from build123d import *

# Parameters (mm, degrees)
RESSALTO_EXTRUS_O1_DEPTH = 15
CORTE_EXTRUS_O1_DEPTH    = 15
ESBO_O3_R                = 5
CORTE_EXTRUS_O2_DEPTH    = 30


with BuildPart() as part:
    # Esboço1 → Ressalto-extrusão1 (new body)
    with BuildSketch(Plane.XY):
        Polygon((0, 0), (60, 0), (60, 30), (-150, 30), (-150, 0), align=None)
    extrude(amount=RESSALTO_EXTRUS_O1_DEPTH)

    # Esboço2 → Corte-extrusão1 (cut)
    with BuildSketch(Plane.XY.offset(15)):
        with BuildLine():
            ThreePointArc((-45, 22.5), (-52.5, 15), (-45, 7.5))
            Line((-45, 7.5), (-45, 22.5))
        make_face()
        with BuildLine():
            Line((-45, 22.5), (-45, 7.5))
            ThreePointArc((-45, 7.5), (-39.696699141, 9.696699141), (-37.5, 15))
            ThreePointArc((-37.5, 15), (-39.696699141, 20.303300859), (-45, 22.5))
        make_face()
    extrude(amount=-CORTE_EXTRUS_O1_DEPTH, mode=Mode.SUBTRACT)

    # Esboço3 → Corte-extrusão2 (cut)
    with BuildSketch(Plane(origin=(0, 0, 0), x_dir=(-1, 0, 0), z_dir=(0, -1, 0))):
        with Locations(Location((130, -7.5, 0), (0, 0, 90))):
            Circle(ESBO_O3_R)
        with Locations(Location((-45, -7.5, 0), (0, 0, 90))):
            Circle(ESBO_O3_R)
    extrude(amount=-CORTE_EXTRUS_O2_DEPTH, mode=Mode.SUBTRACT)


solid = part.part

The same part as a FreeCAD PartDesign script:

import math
import FreeCAD as App
import Part
import Sketcher

V = App.Vector


def add_polygon(sketch, points):
    """Adds a closed chain of lines whose ends are joined by coincident constraints."""
    first, n = sketch.GeometryCount, len(points)
    for a, b in zip(points, points[1:] + points[:1]):
        sketch.addGeometry(Part.LineSegment(App.Vector(*a, 0), App.Vector(*b, 0)), False)
    for i in range(n):
        sketch.addConstraint(Sketcher.Constraint("Coincident", first + i, 2, first + (i + 1) % n, 1))

doc = App.newDocument("Part")
body = doc.addObject("PartDesign::Body", "Body")

sketch1 = body.newObject("Sketcher::SketchObject", "Sketch")
sketch1.AttachmentSupport = (doc.getObject("XY_Plane"), [""])
sketch1.MapMode = "FlatFace"
add_polygon(sketch1, [(60, 0), (60, 30), (-150, 30), (-150, 0)])
sketch1.addConstraint([
    Sketcher.Constraint("Vertical", 0),
    Sketcher.Constraint("Horizontal", 1),
    Sketcher.Constraint("Vertical", 2),
    Sketcher.Constraint("Horizontal", 3),
    Sketcher.Constraint("PointOnObject", 2, 2, -1),
    Sketcher.Constraint("DistanceX", 1, 2, 1, 1, 210.0),
    Sketcher.Constraint("DistanceY", 0, 1, 0, 2, 30.0),
    Sketcher.Constraint("DistanceX", -1, 1, 0, 2, 60.0),
])
pad1 = body.newObject("PartDesign::Pad", "Pad")
pad1.Profile = sketch1
pad1.Length = 15

sketch2 = body.newObject("Sketcher::SketchObject", "Sketch001")
sketch2.AttachmentSupport = (doc.getObject("XY_Plane"), [""])
sketch2.MapMode = "FlatFace"
sketch2.AttachmentOffset = App.Placement(V(0, 0, 15), App.Rotation())
sketch2.addGeometry([
    Part.ArcOfCircle(Part.Circle(V(-45, 15, 0), V(0, 0, 1), 7.5), math.radians(90), math.radians(270)),
    Part.ArcOfCircle(Part.Circle(V(-45, 15, 0), V(0, 0, 1), 7.5), math.radians(-90), math.radians(0)),
    Part.ArcOfCircle(Part.Circle(V(-45, 15, 0), V(0, 0, 1), 7.5), math.radians(0), math.radians(90)),
], False)
sketch2.addConstraint([
    Sketcher.Constraint("Tangent", 0, 2, 1, 1),
    Sketcher.Constraint("Tangent", 1, 2, 2, 1),
    Sketcher.Constraint("Tangent", 2, 2, 0, 1),
    Sketcher.Constraint("Horizontal", 2, 3, 1, 2),
    Sketcher.Constraint("Vertical", 2, 3, 0, 2),
    Sketcher.Constraint("Vertical", 0, 2, 2, 2),
    Sketcher.Constraint("Radius", 0, 7.5),
    Sketcher.Constraint("DistanceX", 0, 3, -1, 1, 45.0),
    Sketcher.Constraint("DistanceY", -1, 1, 0, 3, 15.0),
])
pocket1 = body.newObject("PartDesign::Pocket", "Pocket")
pocket1.Profile = sketch2
pocket1.Length = 15

sketch3 = body.newObject("Sketcher::SketchObject", "Sketch002")
sketch3.AttachmentSupport = (doc.getObject("XZ_Plane"), [""])
sketch3.MapMode = "FlatFace"
sketch3.addGeometry([
    Part.Circle(V(-130, 7.5, 0), V(0, 0, 1), 5),
    Part.Circle(V(45, 7.5, 0), V(0, 0, 1), 5),
], False)
sketch3.addConstraint([
    Sketcher.Constraint("Equal", 0, 1),
    Sketcher.Constraint("Horizontal", 0, 3, 1, 3),
    Sketcher.Constraint("Diameter", 0, 10.0),
    Sketcher.Constraint("DistanceX", 0, 3, -1, 1, 130.0),
    Sketcher.Constraint("DistanceX", -1, 1, 1, 3, 45.0),
    Sketcher.Constraint("DistanceY", -1, 1, 0, 3, 7.5),
])
pocket2 = body.newObject("PartDesign::Pocket", "Pocket001")
pocket2.Profile = sketch3
pocket2.Length = 30

doc.recompute()
